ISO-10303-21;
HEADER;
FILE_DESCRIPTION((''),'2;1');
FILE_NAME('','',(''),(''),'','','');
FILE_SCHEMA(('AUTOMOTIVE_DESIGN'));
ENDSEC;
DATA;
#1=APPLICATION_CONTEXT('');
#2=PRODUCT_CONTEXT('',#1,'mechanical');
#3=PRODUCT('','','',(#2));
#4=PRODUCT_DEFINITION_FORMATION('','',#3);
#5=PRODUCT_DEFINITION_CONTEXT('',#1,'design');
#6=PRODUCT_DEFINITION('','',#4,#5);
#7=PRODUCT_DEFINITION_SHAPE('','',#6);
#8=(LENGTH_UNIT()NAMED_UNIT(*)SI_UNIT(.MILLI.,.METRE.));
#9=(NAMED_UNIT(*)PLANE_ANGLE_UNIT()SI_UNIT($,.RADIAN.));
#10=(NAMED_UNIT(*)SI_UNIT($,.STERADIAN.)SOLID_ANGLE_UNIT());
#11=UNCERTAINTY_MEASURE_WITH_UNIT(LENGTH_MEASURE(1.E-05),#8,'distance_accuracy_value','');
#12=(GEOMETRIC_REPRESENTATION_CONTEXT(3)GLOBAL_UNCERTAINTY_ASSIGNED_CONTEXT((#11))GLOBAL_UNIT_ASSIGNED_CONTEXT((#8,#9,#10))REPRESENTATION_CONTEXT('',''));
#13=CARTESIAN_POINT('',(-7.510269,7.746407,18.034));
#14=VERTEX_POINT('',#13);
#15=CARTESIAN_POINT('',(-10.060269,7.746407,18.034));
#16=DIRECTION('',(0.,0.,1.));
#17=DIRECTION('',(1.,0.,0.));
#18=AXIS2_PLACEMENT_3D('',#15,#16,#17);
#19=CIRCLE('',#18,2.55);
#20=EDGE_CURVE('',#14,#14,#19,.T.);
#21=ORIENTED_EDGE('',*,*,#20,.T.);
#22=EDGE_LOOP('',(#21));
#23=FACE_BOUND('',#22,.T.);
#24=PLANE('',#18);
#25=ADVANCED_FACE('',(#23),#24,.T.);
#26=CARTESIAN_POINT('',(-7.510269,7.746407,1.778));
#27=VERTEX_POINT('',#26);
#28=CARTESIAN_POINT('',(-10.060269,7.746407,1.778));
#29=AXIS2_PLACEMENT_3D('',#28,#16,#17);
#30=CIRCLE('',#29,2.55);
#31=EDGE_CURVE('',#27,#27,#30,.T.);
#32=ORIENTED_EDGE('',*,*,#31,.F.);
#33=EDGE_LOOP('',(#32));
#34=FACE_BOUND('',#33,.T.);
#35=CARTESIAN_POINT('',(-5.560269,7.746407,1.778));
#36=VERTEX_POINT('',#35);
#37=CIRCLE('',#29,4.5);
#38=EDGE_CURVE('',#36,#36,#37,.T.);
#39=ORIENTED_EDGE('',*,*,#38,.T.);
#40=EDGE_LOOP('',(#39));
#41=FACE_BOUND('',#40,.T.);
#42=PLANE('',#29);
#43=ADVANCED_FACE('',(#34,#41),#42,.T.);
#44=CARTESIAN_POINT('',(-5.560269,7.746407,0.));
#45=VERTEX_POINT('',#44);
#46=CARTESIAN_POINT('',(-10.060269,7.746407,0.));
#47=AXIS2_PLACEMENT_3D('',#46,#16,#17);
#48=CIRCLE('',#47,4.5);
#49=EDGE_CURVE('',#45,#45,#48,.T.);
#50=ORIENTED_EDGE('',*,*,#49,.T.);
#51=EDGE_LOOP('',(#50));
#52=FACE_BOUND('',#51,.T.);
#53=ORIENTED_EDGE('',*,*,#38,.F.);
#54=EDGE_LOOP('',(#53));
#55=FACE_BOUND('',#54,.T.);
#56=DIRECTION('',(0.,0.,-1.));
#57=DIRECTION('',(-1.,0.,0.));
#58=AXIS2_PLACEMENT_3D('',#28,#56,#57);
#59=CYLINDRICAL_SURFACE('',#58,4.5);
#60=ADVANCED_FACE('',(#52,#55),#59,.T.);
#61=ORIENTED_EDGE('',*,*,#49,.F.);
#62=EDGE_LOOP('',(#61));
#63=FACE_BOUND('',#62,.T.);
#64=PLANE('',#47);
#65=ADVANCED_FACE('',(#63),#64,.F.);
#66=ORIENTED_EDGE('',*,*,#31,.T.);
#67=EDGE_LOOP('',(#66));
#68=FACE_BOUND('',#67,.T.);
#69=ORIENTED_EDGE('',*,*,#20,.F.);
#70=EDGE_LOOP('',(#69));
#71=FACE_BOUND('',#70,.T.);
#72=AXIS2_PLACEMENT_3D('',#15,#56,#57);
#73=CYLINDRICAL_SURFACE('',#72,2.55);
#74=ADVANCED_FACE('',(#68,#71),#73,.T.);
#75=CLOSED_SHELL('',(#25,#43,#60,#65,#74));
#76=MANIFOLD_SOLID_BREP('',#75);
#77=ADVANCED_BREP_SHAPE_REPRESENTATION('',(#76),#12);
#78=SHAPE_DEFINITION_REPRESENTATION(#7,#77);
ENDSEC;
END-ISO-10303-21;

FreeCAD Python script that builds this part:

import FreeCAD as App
import Part
import Sketcher
from FreeCAD import Vector

doc = App.newDocument("Part")
body = doc.addObject("PartDesign::Body", "Body")

sketch1 = doc.addObject("Sketcher::SketchObject", "Sketch")
body.addObject(sketch1)
sketch1.AttachmentSupport = (doc.XY_Plane, [""])
sketch1.MapMode = "FlatFace"
sketch1.addGeometry(Part.Circle(Vector(-10.1, 7.7, 0), Vector(0, 0, 1), 4.5), False)
sketch1.addConstraint(Sketcher.Constraint("Diameter", 0, 9.0))
sketch1.addConstraint(Sketcher.Constraint("DistanceX", 0, 3, -1, 1, 10.060269))
sketch1.addConstraint(Sketcher.Constraint("DistanceY", -1, 1, 0, 3, 7.746407))
pad1 = doc.addObject("PartDesign::Pad", "Pad")
body.addObject(pad1)
pad1.Profile = sketch1
pad1.Length = 1.778

sketch2 = doc.addObject("Sketcher::SketchObject", "Sketch001")
body.addObject(sketch2)
sketch2.AttachmentSupport = (doc.XY_Plane, [""])
sketch2.MapMode = "FlatFace"
sketch2.AttachmentOffset = App.Placement(Vector(0, 0, 1.778), App.Rotation())
sketch2.addGeometry(Part.Circle(Vector(-10.1, 7.7, 0), Vector(0, 0, 1), 2.5), False)
sketch2.addConstraint(Sketcher.Constraint("Diameter", 0, 5.1))
sketch2.addConstraint(Sketcher.Constraint("DistanceX", 0, 3, -1, 1, 10.060269))
sketch2.addConstraint(Sketcher.Constraint("DistanceY", -1, 1, 0, 3, 7.746407))
pad2 = doc.addObject("PartDesign::Pad", "Pad001")
body.addObject(pad2)
pad2.Profile = sketch2
pad2.Length = 16.256

doc.recompute()
